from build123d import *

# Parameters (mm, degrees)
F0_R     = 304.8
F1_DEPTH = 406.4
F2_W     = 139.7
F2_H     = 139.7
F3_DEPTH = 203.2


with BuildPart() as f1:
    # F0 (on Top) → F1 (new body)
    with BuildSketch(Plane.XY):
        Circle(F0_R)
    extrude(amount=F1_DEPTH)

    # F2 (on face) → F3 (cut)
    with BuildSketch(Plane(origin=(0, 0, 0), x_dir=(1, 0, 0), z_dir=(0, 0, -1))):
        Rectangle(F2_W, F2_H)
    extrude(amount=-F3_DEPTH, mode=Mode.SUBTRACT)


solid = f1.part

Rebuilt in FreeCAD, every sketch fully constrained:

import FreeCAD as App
import Part
import Sketcher
from FreeCAD import Vector
Q = App.Units.Quantity

doc = App.newDocument("Part")
body = doc.addObject("PartDesign::Body", "Body")

# Sketch on XY plane
sketch1 = body.newObject("Sketcher::SketchObject", "Sketch")
sketch1.AttachmentSupport = (doc.getObject("XY_Plane"), [""])
sketch1.MapMode = "FlatFace"
sketch1.addGeometry(Part.Circle(Vector(0, 0, 0), Vector(0, 0, 1), 304.8), False)
sketch1.addConstraint(Sketcher.Constraint("Coincident", 0, 3, -1, 1))
sketch1.addConstraint(Sketcher.Constraint("Diameter", 0, Q("24 in")))
pad1 = body.newObject("PartDesign::Pad", "Pad")
pad1.Profile = sketch1
pad1.Length = Q("16 in")

# Sketch on XY plane
sketch2 = body.newObject("Sketcher::SketchObject", "Sketch001")
sketch2.AttachmentSupport = (doc.getObject("XY_Plane"), [""])
sketch2.MapMode = "FlatFace"
sketch2.addGeometry(Part.LineSegment(Vector(-69.85, -69.85, 0), Vector(-69.85, 69.85, 0)), False)
sketch2.addGeometry(Part.LineSegment(Vector(-69.85, 69.85, 0), Vector(69.85, 69.85, 0)), False)
sketch2.addGeometry(Part.LineSegment(Vector(69.85, 69.85, 0), Vector(69.85, -69.85, 0)), False)
sketch2.addGeometry(Part.LineSegment(Vector(69.85, -69.85, 0), Vector(-69.85, -69.85, 0)), False)
sketch2.addConstraint(Sketcher.Constraint("Coincident", 0, 2, 1, 1))
sketch2.addConstraint(Sketcher.Constraint("Coincident", 1, 2, 2, 1))
sketch2.addConstraint(Sketcher.Constraint("Coincident", 2, 2, 3, 1))
sketch2.addConstraint(Sketcher.Constraint("Coincident", 3, 2, 0, 1))
sketch2.addConstraint(Sketcher.Constraint("Vertical", 0))
sketch2.addConstraint(Sketcher.Constraint("Horizontal", 1))
sketch2.addConstraint(Sketcher.Constraint("Vertical", 2))
sketch2.addConstraint(Sketcher.Constraint("Horizontal", 3))
sketch2.addConstraint(Sketcher.Constraint("Symmetric", 0, 2, 2, 2, -1, 1))
sketch2.addConstraint(Sketcher.Constraint("Equal", 3, 0))
sketch2.addConstraint(Sketcher.Constraint("DistanceX", 1, 1, 1, 2, Q("5.5 in")))
pocket1 = body.newObject("PartDesign::Pocket", "Pocket")
pocket1.Profile = sketch2
pocket1.Length = Q("8 in")
pocket1.Reversed = True

doc.recompute()
